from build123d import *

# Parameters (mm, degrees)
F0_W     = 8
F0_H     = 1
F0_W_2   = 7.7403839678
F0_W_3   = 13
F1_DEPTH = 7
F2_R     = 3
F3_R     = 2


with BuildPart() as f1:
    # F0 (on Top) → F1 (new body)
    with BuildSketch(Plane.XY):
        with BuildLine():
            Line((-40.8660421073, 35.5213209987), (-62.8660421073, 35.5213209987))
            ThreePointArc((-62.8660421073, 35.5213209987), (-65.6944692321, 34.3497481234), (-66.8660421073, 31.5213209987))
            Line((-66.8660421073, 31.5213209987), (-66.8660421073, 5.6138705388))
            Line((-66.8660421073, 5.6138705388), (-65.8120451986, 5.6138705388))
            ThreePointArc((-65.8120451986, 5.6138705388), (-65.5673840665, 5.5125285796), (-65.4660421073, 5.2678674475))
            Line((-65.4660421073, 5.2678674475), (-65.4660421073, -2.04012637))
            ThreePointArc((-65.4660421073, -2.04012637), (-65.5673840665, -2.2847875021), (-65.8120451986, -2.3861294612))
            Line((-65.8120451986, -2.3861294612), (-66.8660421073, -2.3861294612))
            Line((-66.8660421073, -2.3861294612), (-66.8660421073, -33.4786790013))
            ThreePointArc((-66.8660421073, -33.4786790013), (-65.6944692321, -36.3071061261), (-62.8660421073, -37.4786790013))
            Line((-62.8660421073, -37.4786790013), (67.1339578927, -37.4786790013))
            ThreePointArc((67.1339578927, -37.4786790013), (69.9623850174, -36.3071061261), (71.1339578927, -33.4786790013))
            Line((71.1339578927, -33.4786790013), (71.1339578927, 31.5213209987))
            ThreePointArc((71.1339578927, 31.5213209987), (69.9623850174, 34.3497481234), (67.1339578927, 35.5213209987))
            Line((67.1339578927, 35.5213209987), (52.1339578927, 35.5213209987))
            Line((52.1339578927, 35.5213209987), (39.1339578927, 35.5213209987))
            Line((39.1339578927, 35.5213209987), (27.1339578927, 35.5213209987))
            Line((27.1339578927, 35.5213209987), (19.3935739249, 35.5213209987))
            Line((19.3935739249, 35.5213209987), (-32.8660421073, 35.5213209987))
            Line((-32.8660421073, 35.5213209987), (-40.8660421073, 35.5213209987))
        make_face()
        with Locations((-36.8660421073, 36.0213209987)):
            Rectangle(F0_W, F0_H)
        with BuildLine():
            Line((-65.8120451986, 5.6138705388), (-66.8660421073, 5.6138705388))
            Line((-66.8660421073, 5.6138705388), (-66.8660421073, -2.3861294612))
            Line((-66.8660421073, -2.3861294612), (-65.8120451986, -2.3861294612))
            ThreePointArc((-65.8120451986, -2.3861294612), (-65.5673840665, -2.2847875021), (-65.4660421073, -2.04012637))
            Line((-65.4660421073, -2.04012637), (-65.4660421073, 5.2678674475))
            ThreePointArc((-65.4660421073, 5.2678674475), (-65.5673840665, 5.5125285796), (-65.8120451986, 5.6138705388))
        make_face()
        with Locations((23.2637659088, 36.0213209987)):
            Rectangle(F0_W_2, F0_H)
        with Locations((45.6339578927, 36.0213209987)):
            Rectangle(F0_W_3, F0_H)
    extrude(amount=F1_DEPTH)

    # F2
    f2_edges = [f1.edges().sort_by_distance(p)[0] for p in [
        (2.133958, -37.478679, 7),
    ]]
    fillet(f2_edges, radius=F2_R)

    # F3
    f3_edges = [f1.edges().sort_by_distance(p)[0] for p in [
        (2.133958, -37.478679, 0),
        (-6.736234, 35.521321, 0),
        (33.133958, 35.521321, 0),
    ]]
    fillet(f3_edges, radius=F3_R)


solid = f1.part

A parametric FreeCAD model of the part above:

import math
import FreeCAD as App
import Part
import Sketcher
from FreeCAD import Vector
Q = App.Units.Quantity


def edges_at(feature, points):
    """Names of the edges that pass closest to the given points."""
    edges = feature.Shape.Edges
    near = lambda p: min(range(len(edges)), key=lambda i: edges[i].distToShape(Part.Vertex(*p))[0])
    return sorted({f"Edge{near(p) + 1}" for p in points})

doc = App.newDocument("Part")
body = doc.addObject("PartDesign::Body", "Body")

sketch1 = body.newObject("Sketcher::SketchObject", "Sketch")
sketch1.AttachmentSupport = (doc.getObject("XY_Plane"), [""])
sketch1.MapMode = "FlatFace"
sketch1.addGeometry([
    Part.ArcOfCircle(Part.Circle(Vector(-62.9, 31.5, 0), Vector(0, 0, 1), 4), math.radians(90), math.radians(180)),
    Part.LineSegment(Vector(-66.9, 31.5, 0), Vector(-66.9, -33.5, 0)),
    Part.ArcOfCircle(Part.Circle(Vector(-62.9, -33.5, 0), Vector(0, 0, 1), 4), math.radians(180), math.radians(270)),
    Part.LineSegment(Vector(-62.9, -37.5, 0), Vector(67.1, -37.5, 0)),
    Part.ArcOfCircle(Part.Circle(Vector(67.1, -33.5, 0), Vector(0, 0, 1), 4), math.radians(-90), math.radians(0)),
    Part.LineSegment(Vector(71.1, -33.5, 0), Vector(71.1, 31.5, 0)),
    Part.ArcOfCircle(Part.Circle(Vector(67.1, 31.5, 0), Vector(0, 0, 1), 4), math.radians(0), math.radians(90)),
    Part.LineSegment(Vector(67.1, 35.5, 0), Vector(52.1, 35.5, 0)),
    Part.LineSegment(Vector(52.1, 35.5, 0), Vector(52.1, 36.5, 0)),
    Part.LineSegment(Vector(52.1, 36.5, 0), Vector(39.1, 36.5, 0)),
    Part.LineSegment(Vector(39.1, 36.5, 0), Vector(39.1, 35.5, 0)),
    Part.LineSegment(Vector(39.1, 35.5, 0), Vector(27.1, 35.5, 0)),
    Part.LineSegment(Vector(27.1, 35.5, 0), Vector(27.1, 36.5, 0)),
    Part.LineSegment(Vector(27.1, 36.5, 0), Vector(19.4, 36.5, 0)),
    Part.LineSegment(Vector(19.4, 36.5, 0), Vector(19.4, 35.5, 0)),
    Part.LineSegment(Vector(19.4, 35.5, 0), Vector(-32.9, 35.5, 0)),
    Part.LineSegment(Vector(-32.9, 35.5, 0), Vector(-32.9, 36.5, 0)),
    Part.LineSegment(Vector(-32.9, 36.5, 0), Vector(-40.9, 36.5, 0)),
    Part.LineSegment(Vector(-40.9, 36.5, 0), Vector(-40.9, 35.5, 0)),
    Part.LineSegment(Vector(-40.9, 35.5, 0), Vector(-62.9, 35.5, 0)),
], False)
sketch1.addConstraint([
    Sketcher.Constraint("Tangent", 0, 2, 1, 1),
    Sketcher.Constraint("Tangent", 1, 2, 2, 1),
    Sketcher.Constraint("Tangent", 2, 2, 3, 1),
    Sketcher.Constraint("Tangent", 3, 2, 4, 1),
    Sketcher.Constraint("Tangent", 4, 2, 5, 1),
    Sketcher.Constraint("Tangent", 5, 2, 6, 1),
    Sketcher.Constraint("Tangent", 6, 2, 7, 1),
    Sketcher.Constraint("Coincident", 7, 2, 8, 1),
    Sketcher.Constraint("Coincident", 8, 2, 9, 1),
    Sketcher.Constraint("Coincident", 9, 2, 10, 1),
    Sketcher.Constraint("Coincident", 10, 2, 11, 1),
    Sketcher.Constraint("Coincident", 11, 2, 12, 1),
    Sketcher.Constraint("Coincident", 12, 2, 13, 1),
    Sketcher.Constraint("Coincident", 13, 2, 14, 1),
    Sketcher.Constraint("Coincident", 14, 2, 15, 1),
    Sketcher.Constraint("Coincident", 15, 2, 16, 1),
    Sketcher.Constraint("Coincident", 16, 2, 17, 1),
    Sketcher.Constraint("Coincident", 17, 2, 18, 1),
    Sketcher.Constraint("Coincident", 18, 2, 19, 1),
    Sketcher.Constraint("Tangent", 19, 2, 0, 1),
    Sketcher.Constraint("Vertical", 1),
    Sketcher.Constraint("Horizontal", 3),
    Sketcher.Constraint("Vertical", 5),
    Sketcher.Constraint("Horizontal", 7),
    Sketcher.Constraint("Vertical", 8),
    Sketcher.Constraint("Horizontal", 9),
    Sketcher.Constraint("Vertical", 10),
    Sketcher.Constraint("Horizontal", 11),
    Sketcher.Constraint("Vertical", 12),
    Sketcher.Constraint("Horizontal", 13),
    Sketcher.Constraint("Vertical", 14),
    Sketcher.Constraint("Horizontal", 15),
    Sketcher.Constraint("Vertical", 16),
    Sketcher.Constraint("Horizontal", 17),
    Sketcher.Constraint("Vertical", 18),
    Sketcher.Constraint("Horizontal", 19),
    Sketcher.Constraint("Equal", 0, 2),
    Sketcher.Constraint("Equal", 2, 4),
    Sketcher.Constraint("Equal", 4, 6),
    Sketcher.Constraint("Horizontal", 0, 3, 6, 3),
    Sketcher.Constraint("Horizontal", 7, 2, 10, 2),
    Sketcher.Constraint("Horizontal", 9, 2, 12, 2),
    Sketcher.Constraint("Horizontal", 11, 2, 14, 2),
    Sketcher.Constraint("Horizontal", 13, 2, 16, 2),
    Sketcher.Constraint("Radius", 0, Q("4 mm")),
    Sketcher.Constraint("DistanceX", 3, 1, 3, 2, Q("130 mm")),
    Sketcher.Constraint("DistanceX", 7, 2, 7, 1, Q("15 mm")),
    Sketcher.Constraint("DistanceX", 9, 2, 9, 1, Q("13 mm")),
    Sketcher.Constraint("DistanceX", 11, 2, 11, 1, Q("12 mm")),
    Sketcher.Constraint("DistanceX", 17, 2, 17, 1, Q("8 mm")),
    Sketcher.Constraint("DistanceX", 19, 2, 19, 1, Q("22 mm")),
    Sketcher.Constraint("DistanceY", 1, 2, 1, 1, Q("65 mm")),
    Sketcher.Constraint("DistanceY", 8, 1, 8, 2, Q("1 mm")),
    Sketcher.Constraint("DistanceX", 13, 2, 13, 1, Q("7.740384 mm")),
    Sketcher.Constraint("DistanceY", -1, 1, 0, 3, Q("31.521321 mm")),
    Sketcher.Constraint("DistanceX", 0, 3, -1, 1, Q("62.866042 mm")),
])
pad1 = body.newObject("PartDesign::Pad", "Pad")
pad1.Profile = sketch1
pad1.Length = 7
doc.recompute()

fillet = body.newObject("PartDesign::Fillet", "Fillet")
fillet.Base = (pad1, edges_at(pad1, [(2.134, -37.479, 7)]))
fillet.Radius = 3
doc.recompute()

fillet2 = body.newObject("PartDesign::Fillet", "Fillet001")
fillet2.Base = (fillet, edges_at(fillet, [(2.134, -37.479, 0), (-6.736, 35.521, 0), (33.134, 35.521, 0)]))
fillet2.Radius = 2

doc.recompute()
